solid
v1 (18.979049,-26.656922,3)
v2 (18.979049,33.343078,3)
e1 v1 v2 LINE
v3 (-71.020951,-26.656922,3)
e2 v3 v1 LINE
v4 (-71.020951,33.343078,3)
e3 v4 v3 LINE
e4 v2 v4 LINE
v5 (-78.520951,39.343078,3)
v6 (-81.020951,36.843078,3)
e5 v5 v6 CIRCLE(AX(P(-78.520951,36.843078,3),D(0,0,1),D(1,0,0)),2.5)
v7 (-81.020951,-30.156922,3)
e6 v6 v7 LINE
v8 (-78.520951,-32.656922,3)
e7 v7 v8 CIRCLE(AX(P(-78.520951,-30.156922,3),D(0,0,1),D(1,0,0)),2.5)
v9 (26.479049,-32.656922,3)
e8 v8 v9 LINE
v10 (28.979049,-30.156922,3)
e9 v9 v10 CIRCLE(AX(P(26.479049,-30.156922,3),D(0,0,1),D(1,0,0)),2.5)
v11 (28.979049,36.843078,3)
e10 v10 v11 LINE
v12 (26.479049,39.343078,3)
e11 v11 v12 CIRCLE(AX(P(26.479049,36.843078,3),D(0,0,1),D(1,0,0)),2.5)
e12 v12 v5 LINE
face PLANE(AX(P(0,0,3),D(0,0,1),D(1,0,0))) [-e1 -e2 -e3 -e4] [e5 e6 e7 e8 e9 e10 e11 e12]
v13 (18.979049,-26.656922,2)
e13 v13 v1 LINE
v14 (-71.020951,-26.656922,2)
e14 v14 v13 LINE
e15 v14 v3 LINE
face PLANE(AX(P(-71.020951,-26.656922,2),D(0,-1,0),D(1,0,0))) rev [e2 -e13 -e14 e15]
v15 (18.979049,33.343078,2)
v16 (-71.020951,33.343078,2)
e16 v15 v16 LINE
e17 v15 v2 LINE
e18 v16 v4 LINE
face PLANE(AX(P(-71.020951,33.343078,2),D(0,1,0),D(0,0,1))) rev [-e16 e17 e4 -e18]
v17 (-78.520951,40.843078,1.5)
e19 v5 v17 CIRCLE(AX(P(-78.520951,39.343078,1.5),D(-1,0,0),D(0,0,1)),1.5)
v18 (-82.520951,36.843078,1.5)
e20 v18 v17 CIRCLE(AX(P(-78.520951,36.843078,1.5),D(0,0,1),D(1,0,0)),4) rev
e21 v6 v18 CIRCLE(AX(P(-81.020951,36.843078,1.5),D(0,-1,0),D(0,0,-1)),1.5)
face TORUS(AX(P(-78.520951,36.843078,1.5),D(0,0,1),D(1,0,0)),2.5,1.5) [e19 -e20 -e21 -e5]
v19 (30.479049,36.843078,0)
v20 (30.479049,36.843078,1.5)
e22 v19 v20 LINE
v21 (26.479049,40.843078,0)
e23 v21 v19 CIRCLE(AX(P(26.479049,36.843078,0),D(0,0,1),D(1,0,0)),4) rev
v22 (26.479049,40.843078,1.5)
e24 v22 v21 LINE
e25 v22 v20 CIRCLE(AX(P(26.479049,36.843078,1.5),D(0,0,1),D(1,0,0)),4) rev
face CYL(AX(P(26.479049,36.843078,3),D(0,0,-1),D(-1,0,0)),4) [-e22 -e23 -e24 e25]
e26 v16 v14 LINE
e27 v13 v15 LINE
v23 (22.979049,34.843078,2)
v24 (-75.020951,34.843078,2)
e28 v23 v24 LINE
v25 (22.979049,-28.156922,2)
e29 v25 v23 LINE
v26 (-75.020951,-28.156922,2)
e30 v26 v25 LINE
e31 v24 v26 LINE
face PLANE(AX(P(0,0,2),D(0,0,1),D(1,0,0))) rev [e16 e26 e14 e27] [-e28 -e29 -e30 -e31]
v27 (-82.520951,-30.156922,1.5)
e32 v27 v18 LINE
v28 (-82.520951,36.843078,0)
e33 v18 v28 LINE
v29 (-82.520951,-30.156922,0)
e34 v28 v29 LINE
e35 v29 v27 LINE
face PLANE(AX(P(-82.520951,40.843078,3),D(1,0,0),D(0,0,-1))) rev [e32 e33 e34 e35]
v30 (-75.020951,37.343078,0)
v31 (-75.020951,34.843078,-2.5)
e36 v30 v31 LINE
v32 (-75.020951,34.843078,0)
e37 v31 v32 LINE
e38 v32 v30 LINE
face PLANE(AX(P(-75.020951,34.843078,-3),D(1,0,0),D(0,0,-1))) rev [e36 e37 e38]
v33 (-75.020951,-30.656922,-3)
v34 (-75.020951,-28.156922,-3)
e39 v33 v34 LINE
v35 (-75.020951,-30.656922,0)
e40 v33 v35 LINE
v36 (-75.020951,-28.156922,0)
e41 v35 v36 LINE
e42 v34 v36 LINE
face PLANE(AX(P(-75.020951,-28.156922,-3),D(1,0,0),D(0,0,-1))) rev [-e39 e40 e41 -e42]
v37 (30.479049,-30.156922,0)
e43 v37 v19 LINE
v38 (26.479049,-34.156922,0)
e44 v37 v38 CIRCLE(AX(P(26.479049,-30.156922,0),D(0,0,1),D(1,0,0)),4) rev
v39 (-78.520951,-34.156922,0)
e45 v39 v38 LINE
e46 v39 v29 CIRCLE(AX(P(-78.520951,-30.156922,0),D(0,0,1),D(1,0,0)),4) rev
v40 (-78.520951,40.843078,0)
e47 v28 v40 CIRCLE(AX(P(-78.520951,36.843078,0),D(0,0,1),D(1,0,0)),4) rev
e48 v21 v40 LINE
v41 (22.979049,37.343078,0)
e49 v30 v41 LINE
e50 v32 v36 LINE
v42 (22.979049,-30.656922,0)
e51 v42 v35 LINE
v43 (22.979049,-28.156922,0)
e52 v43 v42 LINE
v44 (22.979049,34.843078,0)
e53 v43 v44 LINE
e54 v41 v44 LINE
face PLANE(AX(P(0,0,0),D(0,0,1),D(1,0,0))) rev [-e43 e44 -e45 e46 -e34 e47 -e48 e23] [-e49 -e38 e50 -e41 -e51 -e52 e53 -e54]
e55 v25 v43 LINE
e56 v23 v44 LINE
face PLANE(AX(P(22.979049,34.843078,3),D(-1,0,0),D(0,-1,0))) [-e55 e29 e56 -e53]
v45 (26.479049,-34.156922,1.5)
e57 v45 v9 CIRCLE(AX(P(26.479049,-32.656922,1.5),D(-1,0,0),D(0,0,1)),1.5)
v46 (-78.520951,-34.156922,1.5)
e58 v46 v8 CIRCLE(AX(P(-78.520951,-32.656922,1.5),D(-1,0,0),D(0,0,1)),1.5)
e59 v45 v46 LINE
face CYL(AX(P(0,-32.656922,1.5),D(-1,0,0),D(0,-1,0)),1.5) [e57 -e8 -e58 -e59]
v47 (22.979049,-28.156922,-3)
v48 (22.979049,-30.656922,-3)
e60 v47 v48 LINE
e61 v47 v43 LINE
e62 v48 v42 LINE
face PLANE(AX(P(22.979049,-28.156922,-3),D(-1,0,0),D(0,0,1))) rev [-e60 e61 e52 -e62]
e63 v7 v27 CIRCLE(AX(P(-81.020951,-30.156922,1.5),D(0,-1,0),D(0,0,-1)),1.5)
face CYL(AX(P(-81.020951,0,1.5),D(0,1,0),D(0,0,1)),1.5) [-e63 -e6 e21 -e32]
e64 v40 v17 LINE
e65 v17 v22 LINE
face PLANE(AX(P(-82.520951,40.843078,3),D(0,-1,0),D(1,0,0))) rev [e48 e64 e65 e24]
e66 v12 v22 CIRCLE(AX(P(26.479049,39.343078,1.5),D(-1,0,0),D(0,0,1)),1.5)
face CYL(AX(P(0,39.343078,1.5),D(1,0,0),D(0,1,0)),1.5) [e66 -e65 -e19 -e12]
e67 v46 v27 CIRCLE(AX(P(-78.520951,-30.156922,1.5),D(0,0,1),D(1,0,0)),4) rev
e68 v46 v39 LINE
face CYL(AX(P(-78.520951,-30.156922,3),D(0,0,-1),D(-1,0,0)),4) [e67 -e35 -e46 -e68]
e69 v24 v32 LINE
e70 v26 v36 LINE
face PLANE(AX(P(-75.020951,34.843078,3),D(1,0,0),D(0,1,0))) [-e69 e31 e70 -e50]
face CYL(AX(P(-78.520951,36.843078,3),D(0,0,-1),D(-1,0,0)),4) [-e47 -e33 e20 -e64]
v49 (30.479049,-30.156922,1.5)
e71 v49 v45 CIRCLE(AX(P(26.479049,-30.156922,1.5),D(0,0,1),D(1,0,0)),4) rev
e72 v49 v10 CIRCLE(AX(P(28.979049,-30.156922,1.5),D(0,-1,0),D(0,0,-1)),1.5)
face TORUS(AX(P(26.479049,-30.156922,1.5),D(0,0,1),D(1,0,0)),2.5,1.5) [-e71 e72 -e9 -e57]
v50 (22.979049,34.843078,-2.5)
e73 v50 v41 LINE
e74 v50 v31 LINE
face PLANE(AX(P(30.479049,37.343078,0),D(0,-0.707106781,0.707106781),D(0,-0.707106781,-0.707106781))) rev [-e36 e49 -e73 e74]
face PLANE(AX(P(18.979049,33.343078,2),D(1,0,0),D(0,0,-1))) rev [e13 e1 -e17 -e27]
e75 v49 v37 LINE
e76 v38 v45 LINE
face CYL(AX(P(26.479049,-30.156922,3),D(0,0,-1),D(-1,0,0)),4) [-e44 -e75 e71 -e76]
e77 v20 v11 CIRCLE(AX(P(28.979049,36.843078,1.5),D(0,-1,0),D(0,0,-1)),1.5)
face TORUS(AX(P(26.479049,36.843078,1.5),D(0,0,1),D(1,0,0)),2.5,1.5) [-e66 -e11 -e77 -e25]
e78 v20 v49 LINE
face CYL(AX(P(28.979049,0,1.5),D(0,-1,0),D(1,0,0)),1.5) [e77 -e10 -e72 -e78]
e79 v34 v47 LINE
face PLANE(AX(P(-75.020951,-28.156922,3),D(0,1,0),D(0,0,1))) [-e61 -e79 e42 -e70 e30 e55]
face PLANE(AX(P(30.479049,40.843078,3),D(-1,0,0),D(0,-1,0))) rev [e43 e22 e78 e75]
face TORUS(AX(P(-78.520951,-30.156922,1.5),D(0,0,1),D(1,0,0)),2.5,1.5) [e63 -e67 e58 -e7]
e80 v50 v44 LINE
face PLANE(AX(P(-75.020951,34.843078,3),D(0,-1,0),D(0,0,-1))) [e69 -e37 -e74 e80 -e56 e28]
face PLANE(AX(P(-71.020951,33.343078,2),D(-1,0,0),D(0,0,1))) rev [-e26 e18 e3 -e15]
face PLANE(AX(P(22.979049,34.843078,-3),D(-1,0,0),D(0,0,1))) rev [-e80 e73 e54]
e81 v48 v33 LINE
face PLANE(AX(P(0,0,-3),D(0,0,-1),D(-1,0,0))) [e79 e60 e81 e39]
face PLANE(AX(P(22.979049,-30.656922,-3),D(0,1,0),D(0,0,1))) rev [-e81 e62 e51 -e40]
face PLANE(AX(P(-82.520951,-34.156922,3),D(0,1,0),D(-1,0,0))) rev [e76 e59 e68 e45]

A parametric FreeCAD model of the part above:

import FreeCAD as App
import Part
import Sketcher
Q = App.Units.Quantity


def edges_at(feature, points):
    """Names of the edges that pass closest to the given points."""
    edges = feature.Shape.Edges
    near = lambda p: min(range(len(edges)), key=lambda i: edges[i].distToShape(Part.Vertex(*p))[0])
    return sorted({f"Edge{near(p) + 1}" for p in points})

doc = App.newDocument("Part")
body = doc.addObject("PartDesign::Body", "Body")

sketch1 = doc.addObject("Sketcher::SketchObject", "Sketch")
body.addObject(sketch1)
sketch1.AttachmentSupport = (doc.XY_Plane, [""])
sketch1.MapMode = "FlatFace"
sketch1.addGeometry([
    Part.LineSegment(App.Vector(-83, 41, 0), App.Vector(-83, -34, 0)),
    Part.LineSegment(App.Vector(-83, -34, 0), App.Vector(30, -34, 0)),
    Part.LineSegment(App.Vector(30, -34, 0), App.Vector(30, 41, 0)),
    Part.LineSegment(App.Vector(30, 41, 0), App.Vector(-83, 41, 0)),
    Part.LineSegment(App.Vector(23, -28, 0), App.Vector(-75, -28, 0)),
    Part.LineSegment(App.Vector(-75, -28, 0), App.Vector(-75, 35, 0)),
    Part.LineSegment(App.Vector(-75, 35, 0), App.Vector(23, 35, 0)),
    Part.LineSegment(App.Vector(23, 35, 0), App.Vector(23, -28, 0)),
], False)
sketch1.addConstraint([
    Sketcher.Constraint("Coincident", 0, 2, 1, 1),
    Sketcher.Constraint("Coincident", 1, 2, 2, 1),
    Sketcher.Constraint("Coincident", 2, 2, 3, 1),
    Sketcher.Constraint("Coincident", 3, 2, 0, 1),
    Sketcher.Constraint("Coincident", 4, 2, 5, 1),
    Sketcher.Constraint("Coincident", 5, 2, 6, 1),
    Sketcher.Constraint("Coincident", 6, 2, 7, 1),
    Sketcher.Constraint("Coincident", 7, 2, 4, 1),
    Sketcher.Constraint("Vertical", 0),
    Sketcher.Constraint("Horizontal", 1),
    Sketcher.Constraint("Vertical", 2),
    Sketcher.Constraint("Horizontal", 3),
    Sketcher.Constraint("Horizontal", 4),
    Sketcher.Constraint("Vertical", 5),
    Sketcher.Constraint("Horizontal", 6),
    Sketcher.Constraint("Vertical", 7),
    Sketcher.Constraint("DistanceX", 1, 1, 1, 2, 113.0),
    Sketcher.Constraint("DistanceX", 4, 2, 4, 1, 98.0),
    Sketcher.Constraint("DistanceY", 0, 2, 0, 1, 75.0),
    Sketcher.Constraint("DistanceY", 5, 1, 5, 2, 63.0),
    Sketcher.Constraint("DistanceY", 0, 2, 4, 2, 6.0),
    Sketcher.Constraint("DistanceX", 0, 2, 4, 2, 7.5),
    Sketcher.Constraint("DistanceX", 0, 2, -1, 1, 82.520951),
    Sketcher.Constraint("DistanceY", 0, 2, -1, 1, 34.156922),
])
pad1 = doc.addObject("PartDesign::Pad", "Pad")
body.addObject(pad1)
pad1.Profile = sketch1
pad1.Length = 3
doc.recompute()

fillet = doc.addObject("PartDesign::Fillet", "Fillet")
body.addObject(fillet)
fillet.Base = (pad1, edges_at(pad1, [
    (-82.521, 40.843, 1.5),
    (30.479, 40.843, 1.5),
    (30.479, -34.157, 1.5),
    (-82.521, -34.157, 1.5),
]))
fillet.Radius = 4

sketch2 = doc.addObject("Sketcher::SketchObject", "Sketch001")
body.addObject(sketch2)
sketch2.AttachmentSupport = (doc.XY_Plane, [""])
sketch2.MapMode = "FlatFace"
sketch2.addGeometry([
    Part.LineSegment(App.Vector(23, 37.3, 0), App.Vector(23, 34.8, 0)),
    Part.LineSegment(App.Vector(23, 34.8, 0), App.Vector(-75, 34.8, 0)),
    Part.LineSegment(App.Vector(-75, 34.8, 0), App.Vector(-75, 37.3, 0)),
    Part.LineSegment(App.Vector(-75, 37.3, 0), App.Vector(23, 37.3, 0)),
    Part.LineSegment(App.Vector(23, -28.2, 0), App.Vector(23, -30.7, 0)),
    Part.LineSegment(App.Vector(23, -30.7, 0), App.Vector(-75, -30.7, 0)),
    Part.LineSegment(App.Vector(-75, -30.7, 0), App.Vector(-75, -28.2, 0)),
    Part.LineSegment(App.Vector(-75, -28.2, 0), App.Vector(23, -28.2, 0)),
], False)
sketch2.addConstraint([
    Sketcher.Constraint("Coincident", 0, 2, 1, 1),
    Sketcher.Constraint("Coincident", 1, 2, 2, 1),
    Sketcher.Constraint("Coincident", 2, 2, 3, 1),
    Sketcher.Constraint("Coincident", 3, 2, 0, 1),
    Sketcher.Constraint("Coincident", 4, 2, 5, 1),
    Sketcher.Constraint("Coincident", 5, 2, 6, 1),
    Sketcher.Constraint("Coincident", 6, 2, 7, 1),
    Sketcher.Constraint("Coincident", 7, 2, 4, 1),
    Sketcher.Constraint("Vertical", 0),
    Sketcher.Constraint("Horizontal", 1),
    Sketcher.Constraint("Vertical", 2),
    Sketcher.Constraint("Horizontal", 3),
    Sketcher.Constraint("Vertical", 4),
    Sketcher.Constraint("Horizontal", 5),
    Sketcher.Constraint("Vertical", 6),
    Sketcher.Constraint("Horizontal", 7),
    Sketcher.Constraint("Vertical", 3, 2, 4, 2),
    Sketcher.Constraint("Vertical", 2, 2, 5, 2),
    Sketcher.Constraint("Equal", 2, 4),
    Sketcher.Constraint("DistanceX", 1, 2, 1, 1, 98.0),
    Sketcher.Constraint("DistanceY", 0, 2, 0, 1, 2.5),
    Sketcher.Constraint("DistanceY", 4, 2, 3, 2, 68.0),
    Sketcher.Constraint("DistanceX", -1, 1, 0, 2, 22.979049),
    Sketcher.Constraint("DistanceY", -1, 1, 0, 2, 34.843078),
])
pad2 = doc.addObject("PartDesign::Pad", "Pad001")
body.addObject(pad2)
pad2.Profile = sketch2
pad2.Length = 3
pad2.Reversed = True
doc.recompute()

fillet2 = doc.addObject("PartDesign::Fillet", "Fillet001")
body.addObject(fillet2)
fillet2.Base = (pad2, edges_at(pad2, [
    (-82.521, 3.343, 3),
    (-26.021, 40.843, 3),
    (-26.021, -34.157, 3),
    (30.479, 3.343, 3),
    (29.307, 39.672, 3),
    (29.307, -32.985, 3),
    (-81.349, -32.985, 3),
    (-81.349, 39.672, 3),
]))
fillet2.Radius = 1.5

sketch3 = doc.addObject("Sketcher::SketchObject", "Sketch002")
body.addObject(sketch3)
sketch3.AttachmentSupport = (doc.XY_Plane, [""])
sketch3.MapMode = "FlatFace"
sketch3.AttachmentOffset = App.Placement(App.Vector(0, 0, 3), App.Rotation())
sketch3.addGeometry([
    Part.LineSegment(App.Vector(-75, 35, 0), App.Vector(-75, -28, 0)),
    Part.LineSegment(App.Vector(-75, -28, 0), App.Vector(23, -28, 0)),
    Part.LineSegment(App.Vector(23, -28, 0), App.Vector(23, 35, 0)),
    Part.LineSegment(App.Vector(23, 35, 0), App.Vector(-75, 35, 0)),
    Part.LineSegment(App.Vector(19, -27, 0), App.Vector(-71, -27, 0)),
    Part.LineSegment(App.Vector(-71, -27, 0), App.Vector(-71, 33, 0)),
    Part.LineSegment(App.Vector(-71, 33, 0), App.Vector(19, 33, 0)),
    Part.LineSegment(App.Vector(19, 33, 0), App.Vector(19, -27, 0)),
], False)
sketch3.addConstraint([
    Sketcher.Constraint("Coincident", 0, 2, 1, 1),
    Sketcher.Constraint("Coincident", 1, 2, 2, 1),
    Sketcher.Constraint("Coincident", 2, 2, 3, 1),
    Sketcher.Constraint("Coincident", 3, 2, 0, 1),
    Sketcher.Constraint("Coincident", 4, 2, 5, 1),
    Sketcher.Constraint("Coincident", 5, 2, 6, 1),
    Sketcher.Constraint("Coincident", 6, 2, 7, 1),
    Sketcher.Constraint("Coincident", 7, 2, 4, 1),
    Sketcher.Constraint("Vertical", 0),
    Sketcher.Constraint("Horizontal", 1),
    Sketcher.Constraint("Vertical", 2),
    Sketcher.Constraint("Horizontal", 3),
    Sketcher.Constraint("Horizontal", 4),
    Sketcher.Constraint("Vertical", 5),
    Sketcher.Constraint("Horizontal", 6),
    Sketcher.Constraint("Vertical", 7),
    Sketcher.Constraint("DistanceX", 1, 1, 1, 2, 98.0),
    Sketcher.Constraint("DistanceX", 4, 2, 4, 1, 90.0),
    Sketcher.Constraint("DistanceY", 0, 2, 0, 1, 63.0),
    Sketcher.Constraint("DistanceY", 5, 1, 5, 2, 60.0),
    Sketcher.Constraint("DistanceX", 0, 2, 4, 2, 4.0),
    Sketcher.Constraint("DistanceY", 0, 2, 4, 2, 1.5),
    Sketcher.Constraint("DistanceX", 0, 2, -1, 1, 75.020951),
    Sketcher.Constraint("DistanceY", 0, 2, -1, 1, 28.156922),
])
pad3 = doc.addObject("PartDesign::Pad", "Pad002")
body.addObject(pad3)
pad3.Profile = sketch3
pad3.Length = 1
pad3.Reversed = True

sketch4 = doc.addObject("Sketcher::SketchObject", "Sketch003")
body.addObject(sketch4)
sketch4.AttachmentSupport = (doc.YZ_Plane, [""])
sketch4.MapMode = "FlatFace"
sketch4.AttachmentOffset = App.Placement(App.Vector(0, 0, -75.020951), App.Rotation())
sketch4.addGeometry([
    Part.LineSegment(App.Vector(34.8, -2.5, 0), App.Vector(37.3, 0, 0)),
    Part.LineSegment(App.Vector(37.3, 0, 0), App.Vector(37.3, -3, 0)),
    Part.LineSegment(App.Vector(37.3, -3, 0), App.Vector(34.8, -3, 0)),
    Part.LineSegment(App.Vector(34.8, -3, 0), App.Vector(34.8, -2.5, 0)),
], False)
sketch4.addConstraint([
    Sketcher.Constraint("Coincident", 0, 2, 1, 1),
    Sketcher.Constraint("Coincident", 1, 2, 2, 1),
    Sketcher.Constraint("Coincident", 2, 2, 3, 1),
    Sketcher.Constraint("Coincident", 3, 2, 0, 1),
    Sketcher.Constraint("Vertical", 1),
    Sketcher.Constraint("Horizontal", 2),
    Sketcher.Constraint("Vertical", 3),
    Sketcher.Constraint("PointOnObject", 0, 2, -1),
    Sketcher.Constraint("DistanceY", 1, 2, 1, 1, 3.0),
    Sketcher.Constraint("Angle", 0, Q("45 deg")),
    Sketcher.Constraint("DistanceX", 2, 2, 2, 1, 2.5),
    Sketcher.Constraint("DistanceX", -1, 1, 0, 2, 37.343078),
])
pocket1 = doc.addObject("PartDesign::Pocket", "Pocket")
body.addObject(pocket1)
pocket1.Profile = sketch4
pocket1.Type = "ThroughAll"
pocket1.Midplane = True

doc.recompute()
